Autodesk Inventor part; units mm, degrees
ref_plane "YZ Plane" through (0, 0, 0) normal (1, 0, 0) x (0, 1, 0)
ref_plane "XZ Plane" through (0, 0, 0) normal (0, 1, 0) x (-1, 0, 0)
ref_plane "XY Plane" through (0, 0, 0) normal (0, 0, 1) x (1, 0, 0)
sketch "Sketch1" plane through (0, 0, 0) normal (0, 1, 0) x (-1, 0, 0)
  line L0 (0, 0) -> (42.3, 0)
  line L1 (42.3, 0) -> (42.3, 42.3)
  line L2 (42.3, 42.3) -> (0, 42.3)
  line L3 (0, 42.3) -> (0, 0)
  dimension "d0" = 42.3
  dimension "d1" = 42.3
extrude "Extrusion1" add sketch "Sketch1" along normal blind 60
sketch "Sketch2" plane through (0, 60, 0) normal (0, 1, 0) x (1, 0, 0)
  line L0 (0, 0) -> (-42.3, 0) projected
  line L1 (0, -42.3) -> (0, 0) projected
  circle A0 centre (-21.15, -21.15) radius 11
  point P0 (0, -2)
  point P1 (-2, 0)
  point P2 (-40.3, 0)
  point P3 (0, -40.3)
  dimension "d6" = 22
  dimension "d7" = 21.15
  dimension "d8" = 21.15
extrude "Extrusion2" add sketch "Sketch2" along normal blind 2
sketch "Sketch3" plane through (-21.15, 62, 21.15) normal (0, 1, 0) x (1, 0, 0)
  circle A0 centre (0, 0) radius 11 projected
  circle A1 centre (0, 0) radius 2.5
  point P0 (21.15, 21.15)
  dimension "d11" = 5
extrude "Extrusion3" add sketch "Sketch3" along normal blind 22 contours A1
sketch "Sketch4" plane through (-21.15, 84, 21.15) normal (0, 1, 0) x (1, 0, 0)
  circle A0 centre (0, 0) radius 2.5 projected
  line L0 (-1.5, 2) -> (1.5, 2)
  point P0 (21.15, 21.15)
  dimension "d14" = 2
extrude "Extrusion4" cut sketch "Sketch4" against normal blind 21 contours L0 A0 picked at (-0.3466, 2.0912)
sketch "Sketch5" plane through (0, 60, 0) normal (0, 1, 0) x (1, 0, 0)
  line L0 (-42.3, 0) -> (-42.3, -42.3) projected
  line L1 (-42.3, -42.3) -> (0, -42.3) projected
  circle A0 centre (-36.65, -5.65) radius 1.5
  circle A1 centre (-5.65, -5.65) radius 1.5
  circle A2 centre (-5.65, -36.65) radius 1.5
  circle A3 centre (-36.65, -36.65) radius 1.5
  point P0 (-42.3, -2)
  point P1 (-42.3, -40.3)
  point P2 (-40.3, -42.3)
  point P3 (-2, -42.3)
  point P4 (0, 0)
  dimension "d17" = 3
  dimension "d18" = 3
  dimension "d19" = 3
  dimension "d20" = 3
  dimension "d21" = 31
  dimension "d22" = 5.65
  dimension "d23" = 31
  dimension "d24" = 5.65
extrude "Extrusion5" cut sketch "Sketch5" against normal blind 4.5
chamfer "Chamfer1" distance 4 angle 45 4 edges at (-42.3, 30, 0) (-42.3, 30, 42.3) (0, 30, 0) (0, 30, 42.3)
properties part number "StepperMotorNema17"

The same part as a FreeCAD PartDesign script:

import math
import FreeCAD as App
import Part
import Sketcher

V = App.Vector


def edges_at(feature, points):
    """Names of the edges that pass closest to the given points."""
    edges = feature.Shape.Edges
    near = lambda p: min(range(len(edges)), key=lambda i: edges[i].distToShape(Part.Vertex(*p))[0])
    return sorted({f"Edge{near(p) + 1}" for p in points})


def add_polygon(sketch, points):
    """Adds a closed chain of lines whose ends are joined by coincident constraints."""
    first, n = sketch.GeometryCount, len(points)
    for a, b in zip(points, points[1:] + points[:1]):
        sketch.addGeometry(Part.LineSegment(App.Vector(*a, 0), App.Vector(*b, 0)), False)
    for i in range(n):
        sketch.addConstraint(Sketcher.Constraint("Coincident", first + i, 2, first + (i + 1) % n, 1))

doc = App.newDocument("Part")
body = doc.addObject("PartDesign::Body", "Body")

# Sketch on XZ plane
sketch1 = body.newObject("Sketcher::SketchObject", "Sketch")
sketch1.AttachmentSupport = (doc.getObject("XZ_Plane"), [""])
sketch1.MapMode = "FlatFace"
add_polygon(sketch1, [(0, 42), (0, 0), (-42, 0), (-42, 42)])  # lines 0-3
sketch1.addConstraint([
    Sketcher.Constraint("Vertical", 0),
    Sketcher.Constraint("Horizontal", 1),
    Sketcher.Constraint("Vertical", 2),
    Sketcher.Constraint("Horizontal", 3),
    Sketcher.Constraint("Coincident", 0, 2, -1, 1),
    Sketcher.Constraint("Equal", 3, 0),
    Sketcher.Constraint("DistanceX", 1, 2, 1, 1, 42.3),
])
pad1 = body.newObject("PartDesign::Pad", "Pad")
pad1.Profile = sketch1
pad1.Length = 60
pad1.Reversed = True

# Sketch on XZ plane
sketch2 = body.newObject("Sketcher::SketchObject", "Sketch001")
sketch2.AttachmentSupport = (doc.getObject("XZ_Plane"), [""])
sketch2.MapMode = "FlatFace"
sketch2.AttachmentOffset = App.Placement(V(0, 0, -60), App.Rotation())
sketch2.addGeometry(Part.Circle(V(-21, 21, 0), V(0, 0, 1), 11), False)
sketch2.addConstraint([
    Sketcher.Constraint("Diameter", 0, 22.0),
    Sketcher.Constraint("DistanceX", 0, 3, -1, 1, 21.15),
    Sketcher.Constraint("DistanceY", -1, 1, 0, 3, 21.15),
])
pad2 = body.newObject("PartDesign::Pad", "Pad001")
pad2.Profile = sketch2
pad2.Length = 2
pad2.Reversed = True

# Sketch on XZ plane
sketch3 = body.newObject("Sketcher::SketchObject", "Sketch002")
sketch3.AttachmentSupport = (doc.getObject("XZ_Plane"), [""])
sketch3.MapMode = "FlatFace"
sketch3.AttachmentOffset = App.Placement(V(0, 0, -62), App.Rotation())
sketch3.addGeometry(Part.Circle(V(-21.1, 21.1, 0), V(0, 0, 1), 2.5), False)
sketch3.addConstraint([
    Sketcher.Constraint("Diameter", 0, 5.0),
    Sketcher.Constraint("DistanceX", 0, 3, -1, 1, 21.15),
    Sketcher.Constraint("DistanceY", -1, 1, 0, 3, 21.15),
])
pad3 = body.newObject("PartDesign::Pad", "Pad002")
pad3.Profile = sketch3
pad3.Length = 22
pad3.Reversed = True

# Sketch on XZ plane
sketch4 = body.newObject("Sketcher::SketchObject", "Sketch003")
sketch4.AttachmentSupport = (doc.getObject("XZ_Plane"), [""])
sketch4.MapMode = "FlatFace"
sketch4.AttachmentOffset = App.Placement(V(0, 0, -84), App.Rotation())
sketch4.addGeometry([
    Part.LineSegment(V(-22.6, 19.1, 0), V(-19.6, 19.1, 0)),
    Part.ArcOfCircle(Part.Circle(V(-21.1, 21.1, 0), V(0, 0, 1), 2.5), math.radians(-127), math.radians(-53)),
], False)
sketch4.addConstraint([
    Sketcher.Constraint("Coincident", 0, 1, 1, 1),
    Sketcher.Constraint("Coincident", 1, 2, 0, 2),
    Sketcher.Constraint("Horizontal", 0),
    Sketcher.Constraint("DistanceY", 0, 1, 1, 3, 2.0),
    Sketcher.Constraint("Radius", 1, 2.5),
    Sketcher.Constraint("DistanceX", 1, 3, -1, 1, 21.15),
    Sketcher.Constraint("DistanceY", -1, 1, 1, 3, 21.15),
])
pocket1 = body.newObject("PartDesign::Pocket", "Pocket")
pocket1.Profile = sketch4
pocket1.Length = 21
pocket1.Reversed = True

# Sketch on XZ plane
sketch5 = body.newObject("Sketcher::SketchObject", "Sketch004")
sketch5.AttachmentSupport = (doc.getObject("XZ_Plane"), [""])
sketch5.MapMode = "FlatFace"
sketch5.AttachmentOffset = App.Placement(V(0, 0, -60), App.Rotation())
sketch5.addGeometry([
    Part.Circle(V(-36.6, 5.7, 0), V(0, 0, 1), 1.5),
    Part.Circle(V(-5.7, 5.7, 0), V(0, 0, 1), 1.5),
    Part.Circle(V(-5.7, 36.6, 0), V(0, 0, 1), 1.5),
    Part.Circle(V(-36.6, 36.6, 0), V(0, 0, 1), 1.5),
], False)
sketch5.addConstraint([
    Sketcher.Constraint("Equal", 0, 1),
    Sketcher.Constraint("Equal", 1, 2),
    Sketcher.Constraint("Equal", 2, 3),
    Sketcher.Constraint("Horizontal", 0, 3, 1, 3),
    Sketcher.Constraint("Horizontal", 2, 3, 3, 3),
    Sketcher.Constraint("Vertical", 1, 3, 2, 3),
    Sketcher.Constraint("Vertical", 0, 3, 3, 3),
    Sketcher.Constraint("Diameter", 0, 3.0),
    Sketcher.Constraint("DistanceX", 0, 3, 1, 3, 31.0),
    Sketcher.Constraint("DistanceY", 1, 3, 2, 3, 31.0),
    Sketcher.Constraint("DistanceY", -1, 1, 0, 3, 5.65),
    Sketcher.Constraint("DistanceX", 1, 3, -1, 1, 5.65),
])
pocket2 = body.newObject("PartDesign::Pocket", "Pocket001")
pocket2.Profile = sketch5
pocket2.Length = 4.5
pocket2.Reversed = True
doc.recompute()

chamfer = body.newObject("PartDesign::Chamfer", "Chamfer")
chamfer.Base = (pocket2, edges_at(pocket2, [
    (-42.3, 30, 0),
    (-42.3, 30, 42.3),
    (0, 30, 0),
    (0, 30, 42.3),
]))
chamfer.Size = 4

doc.recompute()
